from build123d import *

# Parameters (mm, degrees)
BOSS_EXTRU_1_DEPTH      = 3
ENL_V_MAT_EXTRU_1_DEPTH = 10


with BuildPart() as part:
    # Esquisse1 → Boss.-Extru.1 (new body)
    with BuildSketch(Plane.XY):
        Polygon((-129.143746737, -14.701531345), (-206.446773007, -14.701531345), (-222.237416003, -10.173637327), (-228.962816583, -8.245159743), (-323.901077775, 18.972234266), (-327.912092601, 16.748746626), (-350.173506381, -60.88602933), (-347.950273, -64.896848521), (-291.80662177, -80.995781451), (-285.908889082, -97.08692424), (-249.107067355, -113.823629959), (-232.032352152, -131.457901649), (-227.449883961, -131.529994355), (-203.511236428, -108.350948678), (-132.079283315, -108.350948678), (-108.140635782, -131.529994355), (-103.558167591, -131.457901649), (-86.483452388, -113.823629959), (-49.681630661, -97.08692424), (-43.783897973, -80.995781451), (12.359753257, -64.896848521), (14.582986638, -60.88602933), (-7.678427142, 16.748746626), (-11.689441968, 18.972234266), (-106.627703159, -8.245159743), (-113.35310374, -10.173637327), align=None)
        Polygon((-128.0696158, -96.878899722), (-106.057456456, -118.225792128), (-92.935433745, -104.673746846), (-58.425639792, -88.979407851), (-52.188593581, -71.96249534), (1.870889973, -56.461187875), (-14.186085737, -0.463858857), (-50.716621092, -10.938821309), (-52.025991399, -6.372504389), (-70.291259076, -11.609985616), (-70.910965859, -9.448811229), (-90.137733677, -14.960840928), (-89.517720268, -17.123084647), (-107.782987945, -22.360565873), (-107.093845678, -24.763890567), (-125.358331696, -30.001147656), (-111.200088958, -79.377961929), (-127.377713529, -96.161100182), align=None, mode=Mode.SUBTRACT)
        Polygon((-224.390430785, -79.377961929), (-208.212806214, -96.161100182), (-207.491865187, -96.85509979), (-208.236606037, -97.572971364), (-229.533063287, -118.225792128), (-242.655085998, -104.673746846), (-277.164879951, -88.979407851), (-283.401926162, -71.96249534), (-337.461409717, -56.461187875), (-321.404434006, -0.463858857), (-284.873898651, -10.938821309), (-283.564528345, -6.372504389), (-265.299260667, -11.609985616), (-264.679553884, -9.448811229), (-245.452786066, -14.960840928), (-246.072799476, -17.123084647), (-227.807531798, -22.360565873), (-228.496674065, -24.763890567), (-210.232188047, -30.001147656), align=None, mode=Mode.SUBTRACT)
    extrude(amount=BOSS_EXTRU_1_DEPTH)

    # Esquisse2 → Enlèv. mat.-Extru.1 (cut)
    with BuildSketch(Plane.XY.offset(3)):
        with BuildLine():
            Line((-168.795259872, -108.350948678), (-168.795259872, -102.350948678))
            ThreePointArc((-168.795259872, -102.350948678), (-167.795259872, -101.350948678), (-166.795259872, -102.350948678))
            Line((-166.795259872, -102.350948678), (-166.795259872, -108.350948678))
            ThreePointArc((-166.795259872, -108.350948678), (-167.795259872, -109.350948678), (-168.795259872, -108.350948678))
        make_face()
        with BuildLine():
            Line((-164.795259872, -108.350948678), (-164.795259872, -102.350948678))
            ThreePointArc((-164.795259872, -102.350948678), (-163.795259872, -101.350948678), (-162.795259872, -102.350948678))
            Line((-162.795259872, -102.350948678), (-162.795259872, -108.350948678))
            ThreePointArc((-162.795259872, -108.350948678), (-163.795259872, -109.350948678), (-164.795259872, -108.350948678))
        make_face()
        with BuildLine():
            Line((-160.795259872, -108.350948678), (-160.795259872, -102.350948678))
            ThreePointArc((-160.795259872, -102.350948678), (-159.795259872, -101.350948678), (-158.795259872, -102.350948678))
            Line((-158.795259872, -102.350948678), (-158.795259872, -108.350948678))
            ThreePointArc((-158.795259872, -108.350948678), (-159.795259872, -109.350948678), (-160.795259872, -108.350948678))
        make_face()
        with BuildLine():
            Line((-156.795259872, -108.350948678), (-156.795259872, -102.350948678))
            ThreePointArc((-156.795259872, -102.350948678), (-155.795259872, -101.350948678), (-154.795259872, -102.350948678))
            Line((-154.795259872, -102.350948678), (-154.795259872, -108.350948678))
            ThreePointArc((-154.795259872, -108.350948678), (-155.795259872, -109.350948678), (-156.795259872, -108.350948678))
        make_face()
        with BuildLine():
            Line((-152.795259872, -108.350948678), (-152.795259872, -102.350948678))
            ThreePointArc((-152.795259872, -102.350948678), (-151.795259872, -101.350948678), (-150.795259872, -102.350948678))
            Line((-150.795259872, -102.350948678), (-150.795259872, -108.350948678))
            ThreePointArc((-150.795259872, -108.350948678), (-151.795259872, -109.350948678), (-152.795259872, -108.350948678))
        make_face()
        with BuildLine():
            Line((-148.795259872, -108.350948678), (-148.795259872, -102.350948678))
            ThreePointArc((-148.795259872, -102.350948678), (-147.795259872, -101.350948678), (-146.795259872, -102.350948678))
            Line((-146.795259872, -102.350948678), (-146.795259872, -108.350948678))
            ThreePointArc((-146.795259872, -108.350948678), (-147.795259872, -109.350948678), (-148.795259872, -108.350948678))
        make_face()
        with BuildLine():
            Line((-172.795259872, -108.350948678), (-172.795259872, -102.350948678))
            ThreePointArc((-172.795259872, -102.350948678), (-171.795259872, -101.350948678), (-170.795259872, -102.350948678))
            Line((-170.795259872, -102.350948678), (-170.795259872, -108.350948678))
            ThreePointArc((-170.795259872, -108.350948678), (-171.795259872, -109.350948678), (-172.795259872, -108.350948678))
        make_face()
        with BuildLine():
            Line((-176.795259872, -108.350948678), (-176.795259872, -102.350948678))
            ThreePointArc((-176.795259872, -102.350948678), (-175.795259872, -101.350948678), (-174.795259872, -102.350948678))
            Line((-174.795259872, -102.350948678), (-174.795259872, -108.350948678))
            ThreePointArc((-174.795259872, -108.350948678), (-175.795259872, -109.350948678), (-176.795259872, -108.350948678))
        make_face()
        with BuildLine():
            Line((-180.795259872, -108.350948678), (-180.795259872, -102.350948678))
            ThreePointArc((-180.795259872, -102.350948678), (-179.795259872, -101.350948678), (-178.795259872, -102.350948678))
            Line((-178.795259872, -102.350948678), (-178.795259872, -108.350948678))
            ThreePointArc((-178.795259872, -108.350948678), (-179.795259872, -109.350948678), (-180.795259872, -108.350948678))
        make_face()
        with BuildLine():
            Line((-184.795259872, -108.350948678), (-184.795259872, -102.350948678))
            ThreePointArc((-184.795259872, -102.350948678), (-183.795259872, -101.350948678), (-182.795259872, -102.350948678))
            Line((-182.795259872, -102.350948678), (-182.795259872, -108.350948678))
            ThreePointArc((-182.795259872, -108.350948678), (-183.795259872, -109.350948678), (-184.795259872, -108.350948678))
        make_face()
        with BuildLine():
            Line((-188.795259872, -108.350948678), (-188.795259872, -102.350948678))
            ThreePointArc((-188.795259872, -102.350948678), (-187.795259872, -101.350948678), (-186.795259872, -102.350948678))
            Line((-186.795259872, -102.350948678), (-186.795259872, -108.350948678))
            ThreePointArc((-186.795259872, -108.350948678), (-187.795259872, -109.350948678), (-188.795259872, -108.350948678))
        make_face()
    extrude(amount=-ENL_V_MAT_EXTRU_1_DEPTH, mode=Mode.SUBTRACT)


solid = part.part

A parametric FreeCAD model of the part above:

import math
import FreeCAD as App
import Part
import Sketcher
Q = App.Units.Quantity

doc = App.newDocument("Part")
body = doc.addObject("PartDesign::Body", "Body")

# Sketch on XY plane
sketch1 = doc.addObject("Sketcher::SketchObject", "Sketch")
body.addObject(sketch1)
sketch1.AttachmentSupport = (doc.XY_Plane, [""])
sketch1.MapMode = "FlatFace"
sketch1.addGeometry(Part.LineSegment(App.Vector(-129.1, -14.7, 0), App.Vector(-206.4, -14.7, 0)), False)
sketch1.addGeometry(Part.LineSegment(App.Vector(-206.4, -14.7, 0), App.Vector(-229, -8.2, 0)), False)
sketch1.addGeometry(Part.LineSegment(App.Vector(-229, -8.2, 0), App.Vector(-323.9, 19, 0)), False)
sketch1.addGeometry(Part.LineSegment(App.Vector(-323.9, 19, 0), App.Vector(-327.9, 16.7, 0)), False)
sketch1.addGeometry(Part.LineSegment(App.Vector(-327.9, 16.7, 0), App.Vector(-350.2, -60.9, 0)), False)
sketch1.addGeometry(Part.LineSegment(App.Vector(-350.2, -60.9, 0), App.Vector(-348, -64.9, 0)), False)
sketch1.addGeometry(Part.LineSegment(App.Vector(-348, -64.9, 0), App.Vector(-291.8, -81, 0)), False)
sketch1.addGeometry(Part.LineSegment(App.Vector(-291.8, -81, 0), App.Vector(-285.9, -97.1, 0)), False)
sketch1.addGeometry(Part.LineSegment(App.Vector(-285.9, -97.1, 0), App.Vector(-249.1, -113.8, 0)), False)
sketch1.addGeometry(Part.LineSegment(App.Vector(-249.1, -113.8, 0), App.Vector(-232, -131.5, 0)), False)
sketch1.addGeometry(Part.LineSegment(App.Vector(-232, -131.5, 0), App.Vector(-227.4, -131.5, 0)), False)
sketch1.addGeometry(Part.LineSegment(App.Vector(-227.4, -131.5, 0), App.Vector(-203.5, -108.4, 0)), False)
sketch1.addGeometry(Part.LineSegment(App.Vector(-203.5, -108.4, 0), App.Vector(-132.1, -108.4, 0)), False)
sketch1.addGeometry(Part.LineSegment(App.Vector(-132.1, -108.4, 0), App.Vector(-108.1, -131.5, 0)), False)
sketch1.addGeometry(Part.LineSegment(App.Vector(-108.1, -131.5, 0), App.Vector(-103.6, -131.5, 0)), False)
sketch1.addGeometry(Part.LineSegment(App.Vector(-103.6, -131.5, 0), App.Vector(-86.5, -113.8, 0)), False)
sketch1.addGeometry(Part.LineSegment(App.Vector(-86.5, -113.8, 0), App.Vector(-49.7, -97.1, 0)), False)
sketch1.addGeometry(Part.LineSegment(App.Vector(-49.7, -97.1, 0), App.Vector(-43.8, -81, 0)), False)
sketch1.addGeometry(Part.LineSegment(App.Vector(-43.8, -81, 0), App.Vector(12.4, -64.9, 0)), False)
sketch1.addGeometry(Part.LineSegment(App.Vector(12.4, -64.9, 0), App.Vector(14.6, -60.9, 0)), False)
sketch1.addGeometry(Part.LineSegment(App.Vector(14.6, -60.9, 0), App.Vector(-7.7, 16.7, 0)), False)
sketch1.addGeometry(Part.LineSegment(App.Vector(-7.7, 16.7, 0), App.Vector(-11.7, 19, 0)), False)
sketch1.addGeometry(Part.LineSegment(App.Vector(-11.7, 19, 0), App.Vector(-106.6, -8.2, 0)), False)
sketch1.addGeometry(Part.LineSegment(App.Vector(-106.6, -8.2, 0), App.Vector(-113.4, -10.2, 0)), False)
sketch1.addGeometry(Part.LineSegment(App.Vector(-113.4, -10.2, 0), App.Vector(-129.1, -14.7, 0)), False)
sketch1.addGeometry(Part.LineSegment(App.Vector(-210.2, -30, 0), App.Vector(-224.4, -79.4, 0)), False)
sketch1.addGeometry(Part.LineSegment(App.Vector(-224.4, -79.4, 0), App.Vector(-208.2, -96.2, 0)), False)
sketch1.addGeometry(Part.LineSegment(App.Vector(-208.2, -96.2, 0), App.Vector(-207.5, -96.9, 0)), False)
sketch1.addGeometry(Part.LineSegment(App.Vector(-207.5, -96.9, 0), App.Vector(-208.2, -97.6, 0)), False)
sketch1.addGeometry(Part.LineSegment(App.Vector(-208.2, -97.6, 0), App.Vector(-229.5, -118.2, 0)), False)
sketch1.addGeometry(Part.LineSegment(App.Vector(-229.5, -118.2, 0), App.Vector(-242.7, -104.7, 0)), False)
sketch1.addGeometry(Part.LineSegment(App.Vector(-242.7, -104.7, 0), App.Vector(-277.2, -89, 0)), False)
sketch1.addGeometry(Part.LineSegment(App.Vector(-277.2, -89, 0), App.Vector(-283.4, -72, 0)), False)
sketch1.addGeometry(Part.LineSegment(App.Vector(-283.4, -72, 0), App.Vector(-337.5, -56.5, 0)), False)
sketch1.addGeometry(Part.LineSegment(App.Vector(-337.5, -56.5, 0), App.Vector(-321.4, -0.5, 0)), False)
sketch1.addGeometry(Part.LineSegment(App.Vector(-321.4, -0.5, 0), App.Vector(-284.9, -10.9, 0)), False)
sketch1.addGeometry(Part.LineSegment(App.Vector(-284.9, -10.9, 0), App.Vector(-283.6, -6.4, 0)), False)
sketch1.addGeometry(Part.LineSegment(App.Vector(-283.6, -6.4, 0), App.Vector(-265.3, -11.6, 0)), False)
sketch1.addGeometry(Part.LineSegment(App.Vector(-265.3, -11.6, 0), App.Vector(-264.7, -9.4, 0)), False)
sketch1.addGeometry(Part.LineSegment(App.Vector(-264.7, -9.4, 0), App.Vector(-245.5, -15, 0)), False)
sketch1.addGeometry(Part.LineSegment(App.Vector(-245.5, -15, 0), App.Vector(-246.1, -17.1, 0)), False)
sketch1.addGeometry(Part.LineSegment(App.Vector(-246.1, -17.1, 0), App.Vector(-227.8, -22.4, 0)), False)
sketch1.addGeometry(Part.LineSegment(App.Vector(-227.8, -22.4, 0), App.Vector(-228.5, -24.8, 0)), False)
sketch1.addGeometry(Part.LineSegment(App.Vector(-228.5, -24.8, 0), App.Vector(-210.2, -30, 0)), False)
sketch1.addGeometry(Part.LineSegment(App.Vector(-106.1, -118.2, 0), App.Vector(-128.1, -96.9, 0)), False)
sketch1.addGeometry(Part.LineSegment(App.Vector(-128.1, -96.9, 0), App.Vector(-127.4, -96.2, 0)), False)
sketch1.addGeometry(Part.LineSegment(App.Vector(-127.4, -96.2, 0), App.Vector(-111.2, -79.4, 0)), False)
sketch1.addGeometry(Part.LineSegment(App.Vector(-111.2, -79.4, 0), App.Vector(-125.4, -30, 0)), False)
sketch1.addGeometry(Part.LineSegment(App.Vector(-125.4, -30, 0), App.Vector(-107.1, -24.8, 0)), False)
sketch1.addGeometry(Part.LineSegment(App.Vector(-107.1, -24.8, 0), App.Vector(-107.8, -22.4, 0)), False)
sketch1.addGeometry(Part.LineSegment(App.Vector(-107.8, -22.4, 0), App.Vector(-89.5, -17.1, 0)), False)
sketch1.addGeometry(Part.LineSegment(App.Vector(-89.5, -17.1, 0), App.Vector(-90.1, -15, 0)), False)
sketch1.addGeometry(Part.LineSegment(App.Vector(-90.1, -15, 0), App.Vector(-70.9, -9.4, 0)), False)
sketch1.addGeometry(Part.LineSegment(App.Vector(-70.9, -9.4, 0), App.Vector(-70.3, -11.6, 0)), False)
sketch1.addGeometry(Part.LineSegment(App.Vector(-70.3, -11.6, 0), App.Vector(-52, -6.4, 0)), False)
sketch1.addGeometry(Part.LineSegment(App.Vector(-52, -6.4, 0), App.Vector(-50.7, -10.9, 0)), False)
sketch1.addGeometry(Part.LineSegment(App.Vector(-50.7, -10.9, 0), App.Vector(-14.2, -0.5, 0)), False)
sketch1.addGeometry(Part.LineSegment(App.Vector(-14.2, -0.5, 0), App.Vector(1.9, -56.5, 0)), False)
sketch1.addGeometry(Part.LineSegment(App.Vector(1.9, -56.5, 0), App.Vector(-52.2, -72, 0)), False)
sketch1.addGeometry(Part.LineSegment(App.Vector(-52.2, -72, 0), App.Vector(-58.4, -89, 0)), False)
sketch1.addGeometry(Part.LineSegment(App.Vector(-58.4, -89, 0), App.Vector(-92.9, -104.7, 0)), False)
sketch1.addGeometry(Part.LineSegment(App.Vector(-92.9, -104.7, 0), App.Vector(-106.1, -118.2, 0)), False)
sketch1.addConstraint(Sketcher.Constraint("Coincident", 0, 2, 1, 1))
sketch1.addConstraint(Sketcher.Constraint("Coincident", 1, 2, 2, 1))
sketch1.addConstraint(Sketcher.Constraint("Coincident", 2, 2, 3, 1))
sketch1.addConstraint(Sketcher.Constraint("Coincident", 3, 2, 4, 1))
sketch1.addConstraint(Sketcher.Constraint("Coincident", 4, 2, 5, 1))
sketch1.addConstraint(Sketcher.Constraint("Coincident", 5, 2, 6, 1))
sketch1.addConstraint(Sketcher.Constraint("Coincident", 6, 2, 7, 1))
sketch1.addConstraint(Sketcher.Constraint("Coincident", 7, 2, 8, 1))
sketch1.addConstraint(Sketcher.Constraint("Coincident", 8, 2, 9, 1))
sketch1.addConstraint(Sketcher.Constraint("Coincident", 9, 2, 10, 1))
sketch1.addConstraint(Sketcher.Constraint("Coincident", 10, 2, 11, 1))
sketch1.addConstraint(Sketcher.Constraint("Coincident", 11, 2, 12, 1))
sketch1.addConstraint(Sketcher.Constraint("Coincident", 12, 2, 13, 1))
sketch1.addConstraint(Sketcher.Constraint("Coincident", 13, 2, 14, 1))
sketch1.addConstraint(Sketcher.Constraint("Coincident", 14, 2, 15, 1))
sketch1.addConstraint(Sketcher.Constraint("Coincident", 15, 2, 16, 1))
sketch1.addConstraint(Sketcher.Constraint("Coincident", 16, 2, 17, 1))
sketch1.addConstraint(Sketcher.Constraint("Coincident", 17, 2, 18, 1))
sketch1.addConstraint(Sketcher.Constraint("Coincident", 18, 2, 19, 1))
sketch1.addConstraint(Sketcher.Constraint("Coincident", 19, 2, 20, 1))
sketch1.addConstraint(Sketcher.Constraint("Coincident", 20, 2, 21, 1))
sketch1.addConstraint(Sketcher.Constraint("Coincident", 21, 2, 22, 1))
sketch1.addConstraint(Sketcher.Constraint("Coincident", 22, 2, 23, 1))
sketch1.addConstraint(Sketcher.Constraint("Coincident", 23, 2, 24, 1))
sketch1.addConstraint(Sketcher.Constraint("Coincident", 24, 2, 0, 1))
sketch1.addConstraint(Sketcher.Constraint("Coincident", 25, 2, 26, 1))
sketch1.addConstraint(Sketcher.Constraint("Coincident", 26, 2, 27, 1))
sketch1.addConstraint(Sketcher.Constraint("Coincident", 27, 2, 28, 1))
sketch1.addConstraint(Sketcher.Constraint("Coincident", 28, 2, 29, 1))
sketch1.addConstraint(Sketcher.Constraint("Coincident", 29, 2, 30, 1))
sketch1.addConstraint(Sketcher.Constraint("Coincident", 30, 2, 31, 1))
sketch1.addConstraint(Sketcher.Constraint("Coincident", 31, 2, 32, 1))
sketch1.addConstraint(Sketcher.Constraint("Coincident", 32, 2, 33, 1))
sketch1.addConstraint(Sketcher.Constraint("Coincident", 33, 2, 34, 1))
sketch1.addConstraint(Sketcher.Constraint("Coincident", 34, 2, 35, 1))
sketch1.addConstraint(Sketcher.Constraint("Coincident", 35, 2, 36, 1))
sketch1.addConstraint(Sketcher.Constraint("Coincident", 36, 2, 37, 1))
sketch1.addConstraint(Sketcher.Constraint("Coincident", 37, 2, 38, 1))
sketch1.addConstraint(Sketcher.Constraint("Coincident", 38, 2, 39, 1))
sketch1.addConstraint(Sketcher.Constraint("Coincident", 39, 2, 40, 1))
sketch1.addConstraint(Sketcher.Constraint("Coincident", 40, 2, 41, 1))
sketch1.addConstraint(Sketcher.Constraint("Coincident", 41, 2, 42, 1))
sketch1.addConstraint(Sketcher.Constraint("Coincident", 42, 2, 43, 1))
sketch1.addConstraint(Sketcher.Constraint("Coincident", 43, 2, 25, 1))
sketch1.addConstraint(Sketcher.Constraint("Coincident", 44, 2, 45, 1))
sketch1.addConstraint(Sketcher.Constraint("Coincident", 45, 2, 46, 1))
sketch1.addConstraint(Sketcher.Constraint("Coincident", 46, 2, 47, 1))
sketch1.addConstraint(Sketcher.Constraint("Coincident", 47, 2, 48, 1))
sketch1.addConstraint(Sketcher.Constraint("Coincident", 48, 2, 49, 1))
sketch1.addConstraint(Sketcher.Constraint("Coincident", 49, 2, 50, 1))
sketch1.addConstraint(Sketcher.Constraint("Coincident", 50, 2, 51, 1))
sketch1.addConstraint(Sketcher.Constraint("Coincident", 51, 2, 52, 1))
sketch1.addConstraint(Sketcher.Constraint("Coincident", 52, 2, 53, 1))
sketch1.addConstraint(Sketcher.Constraint("Coincident", 53, 2, 54, 1))
sketch1.addConstraint(Sketcher.Constraint("Coincident", 54, 2, 55, 1))
sketch1.addConstraint(Sketcher.Constraint("Coincident", 55, 2, 56, 1))
sketch1.addConstraint(Sketcher.Constraint("Coincident", 56, 2, 57, 1))
sketch1.addConstraint(Sketcher.Constraint("Coincident", 57, 2, 58, 1))
sketch1.addConstraint(Sketcher.Constraint("Coincident", 58, 2, 59, 1))
sketch1.addConstraint(Sketcher.Constraint("Coincident", 59, 2, 60, 1))
sketch1.addConstraint(Sketcher.Constraint("Coincident", 60, 2, 61, 1))
sketch1.addConstraint(Sketcher.Constraint("Coincident", 61, 2, 44, 1))
sketch1.addConstraint(Sketcher.Constraint("Horizontal", 0))
sketch1.addConstraint(Sketcher.Constraint("Horizontal", 12))
sketch1.addConstraint(Sketcher.Constraint("Perpendicular", 1, 4))
sketch1.addConstraint(Sketcher.Constraint("Perpendicular", 4, 6))
sketch1.addConstraint(Sketcher.Constraint("Perpendicular", 9, 11))
sketch1.addConstraint(Sketcher.Constraint("Perpendicular", 13, 15))
sketch1.addConstraint(Sketcher.Constraint("Perpendicular", 18, 20))
sketch1.addConstraint(Sketcher.Constraint("Perpendicular", 20, 23))
sketch1.addConstraint(Sketcher.Constraint("Parallel", 23, 24))
sketch1.addConstraint(Sketcher.Constraint("Perpendicular", 26, 28))
sketch1.addConstraint(Sketcher.Constraint("Perpendicular", 11, 30))
sketch1.addConstraint(Sketcher.Constraint("Parallel", 8, 31))
sketch1.addConstraint(Sketcher.Constraint("Parallel", 7, 32))
sketch1.addConstraint(Sketcher.Constraint("Parallel", 6, 33))
sketch1.addConstraint(Sketcher.Constraint("Perpendicular", 33, 34))
sketch1.addConstraint(Sketcher.Constraint("Perpendicular", 34, 35))
sketch1.addConstraint(Sketcher.Constraint("Perpendicular", 35, 36))
sketch1.addConstraint(Sketcher.Constraint("Perpendicular", 36, 37))
sketch1.addConstraint(Sketcher.Constraint("Perpendicular", 37, 38))
sketch1.addConstraint(Sketcher.Constraint("Parallel", 2, 39))
sketch1.addConstraint(Sketcher.Constraint("Parallel", 38, 40))
sketch1.addConstraint(Sketcher.Constraint("Perpendicular", 40, 41))
sketch1.addConstraint(Sketcher.Constraint("Perpendicular", 41, 42))
sketch1.addConstraint(Sketcher.Constraint("Perpendicular", 42, 43))
sketch1.addConstraint(Sketcher.Constraint("Parallel", 45, 46))
sketch1.addConstraint(Sketcher.Constraint("Parallel", 24, 48))
sketch1.addConstraint(Sketcher.Constraint("Perpendicular", 48, 49))
sketch1.addConstraint(Sketcher.Constraint("Perpendicular", 49, 50))
sketch1.addConstraint(Sketcher.Constraint("Perpendicular", 50, 51))
sketch1.addConstraint(Sketcher.Constraint("Parallel", 22, 52))
sketch1.addConstraint(Sketcher.Constraint("Parallel", 51, 53))
sketch1.addConstraint(Sketcher.Constraint("Perpendicular", 53, 54))
sketch1.addConstraint(Sketcher.Constraint("Perpendicular", 54, 55))
sketch1.addConstraint(Sketcher.Constraint("Perpendicular", 55, 56))
sketch1.addConstraint(Sketcher.Constraint("Perpendicular", 56, 57))
sketch1.addConstraint(Sketcher.Constraint("Perpendicular", 57, 58))
sketch1.addConstraint(Sketcher.Constraint("Parallel", 17, 59))
sketch1.addConstraint(Sketcher.Constraint("Parallel", 16, 60))
sketch1.addConstraint(Sketcher.Constraint("Parallel", 15, 61))
sketch1.addConstraint(Sketcher.Constraint("Horizontal", 10, 2, 13, 2))
sketch1.addConstraint(Sketcher.Constraint("Horizontal", 9, 2, 14, 2))
sketch1.addConstraint(Sketcher.Constraint("Horizontal", 8, 2, 15, 2))
sketch1.addConstraint(Sketcher.Constraint("Horizontal", 7, 2, 16, 2))
sketch1.addConstraint(Sketcher.Constraint("Horizontal", 6, 2, 17, 2))
sketch1.addConstraint(Sketcher.Constraint("Horizontal", 5, 2, 18, 2))
sketch1.addConstraint(Sketcher.Constraint("Horizontal", 4, 2, 19, 2))
sketch1.addConstraint(Sketcher.Constraint("Horizontal", 3, 2, 20, 2))
sketch1.addConstraint(Sketcher.Constraint("Horizontal", 2, 2, 21, 2))
sketch1.addConstraint(Sketcher.Constraint("Horizontal", 1, 2, 22, 2))
sketch1.addConstraint(Sketcher.Constraint("Horizontal", 26, 2, 45, 2))
sketch1.addConstraint(Sketcher.Constraint("Horizontal", 25, 2, 46, 2))
sketch1.addConstraint(Sketcher.Constraint("Horizontal", 43, 2, 47, 2))
sketch1.addConstraint(Sketcher.Constraint("Horizontal", 42, 2, 48, 2))
sketch1.addConstraint(Sketcher.Constraint("Horizontal", 41, 2, 49, 2))
sketch1.addConstraint(Sketcher.Constraint("Horizontal", 40, 2, 50, 2))
sketch1.addConstraint(Sketcher.Constraint("Horizontal", 39, 2, 51, 2))
sketch1.addConstraint(Sketcher.Constraint("Horizontal", 38, 2, 52, 2))
sketch1.addConstraint(Sketcher.Constraint("Horizontal", 37, 2, 53, 2))
sketch1.addConstraint(Sketcher.Constraint("Horizontal", 36, 2, 54, 2))
sketch1.addConstraint(Sketcher.Constraint("Horizontal", 35, 2, 55, 2))
sketch1.addConstraint(Sketcher.Constraint("Horizontal", 34, 2, 56, 2))
sketch1.addConstraint(Sketcher.Constraint("Horizontal", 33, 2, 57, 2))
sketch1.addConstraint(Sketcher.Constraint("Horizontal", 32, 2, 58, 2))
sketch1.addConstraint(Sketcher.Constraint("Horizontal", 31, 2, 59, 2))
sketch1.addConstraint(Sketcher.Constraint("Horizontal", 30, 2, 60, 2))
sketch1.addConstraint(Sketcher.Constraint("Horizontal", 29, 2, 61, 2))
sketch1.addConstraint(Sketcher.Constraint("Equal", 11, 13))
sketch1.addConstraint(Sketcher.Constraint("Equal", 10, 14))
sketch1.addConstraint(Sketcher.Constraint("Equal", 8, 16))
sketch1.addConstraint(Sketcher.Constraint("Equal", 7, 17))
sketch1.addConstraint(Sketcher.Constraint("Equal", 6, 18))
sketch1.addConstraint(Sketcher.Constraint("Equal", 5, 19))
sketch1.addConstraint(Sketcher.Constraint("Equal", 3, 21))
sketch1.addConstraint(Sketcher.Constraint("Equal", 2, 22))
sketch1.addConstraint(Sketcher.Constraint("Equal", 37, 41))
sketch1.addConstraint(Sketcher.Constraint("Equal", 26, 46))
sketch1.addConstraint(Sketcher.Constraint("Equal", 25, 47))
sketch1.addConstraint(Sketcher.Constraint("Angle", 1, Q("164 deg")))
sketch1.addConstraint(Sketcher.Constraint("Angle", 5, Q("-61 deg")))
sketch1.addConstraint(Sketcher.Constraint("DistanceY", 9, 2, -1, 1, 131.457902))
sketch1.addConstraint(Sketcher.Constraint("DistanceY", 26, 2, -1, 1, 96.1611))
sketch1.addConstraint(Sketcher.Constraint("DistanceY", 27, 2, -1, 1, 96.8551))
sketch1.addConstraint(Sketcher.Constraint("DistanceX", 35, 2, -1, 1, 284.873899))
sketch1.addConstraint(Sketcher.Constraint("DistanceX", 40, 2, -1, 1, 246.072799))
sketch1.addConstraint(Sketcher.Constraint("DistanceY", 44, 2, -1, 1, 96.8789))
sketch1.addConstraint(Sketcher.Constraint("Distance", 3, 4.586081))
sketch1.addConstraint(Sketcher.Constraint("Distance", 6, 58.406209))
sketch1.addConstraint(Sketcher.Constraint("Distance", 9, 24.546149))
sketch1.addConstraint(Sketcher.Constraint("Distance", 11, 33.32157))
sketch1.addConstraint(Sketcher.Constraint("Distance", 23, 6.99643))
sketch1.addConstraint(Sketcher.Constraint("Distance", 25, 51.366581))
sketch1.addConstraint(Sketcher.Constraint("Distance", 26, 23.310711))
sketch1.addConstraint(Sketcher.Constraint("Distance", 29, 29.66611))
sketch1.addConstraint(Sketcher.Constraint("Distance", 32, 18.123908))
sketch1.addConstraint(Sketcher.Constraint("Distance", 33, 56.23805))
sketch1.addConstraint(Sketcher.Constraint("Distance", 34, 58.25399))
sketch1.addConstraint(Sketcher.Constraint("Distance", 38, 2.248268))
sketch1.addConstraint(Sketcher.Constraint("Distance", 40, 2.249381))
sketch1.addConstraint(Sketcher.Constraint("Distance", 44, 30.663088))
sketch1.addConstraint(Sketcher.Constraint("DistanceX", 0, 2, 0, 1, 77.303026))
sketch1.addConstraint(Sketcher.Constraint("DistanceX", 12, 1, 12, 2, 71.431953))
sketch1.addConstraint(Sketcher.Constraint("DistanceY", 0, 2, -1, 1, 14.701531))
sketch1.addConstraint(Sketcher.Constraint("DistanceY", 1, 2, -1, 1, 8.24516))
sketch1.addConstraint(Sketcher.Constraint("DistanceY", 4, 2, -1, 1, 60.886029))
sketch1.addConstraint(Sketcher.Constraint("DistanceY", 5, 2, -1, 1, 64.896849))
sketch1.addConstraint(Sketcher.Constraint("DistanceX", 6, 2, -1, 1, 291.806622))
sketch1.addConstraint(Sketcher.Constraint("DistanceX", 7, 2, -1, 1, 285.908889))
sketch1.addConstraint(Sketcher.Constraint("DistanceY", 8, 2, -1, 1, 113.82363))
sketch1.addConstraint(Sketcher.Constraint("DistanceY", 11, 2, -1, 1, 108.350949))
sketch1.addConstraint(Sketcher.Constraint("DistanceX", 16, 2, -1, 1, 49.681631))
sketch1.addConstraint(Sketcher.Constraint("DistanceX", 21, 2, -1, 1, 11.689442))
sketch1.addConstraint(Sketcher.Constraint("DistanceX", 25, 2, -1, 1, 224.390431))
sketch1.addConstraint(Sketcher.Constraint("DistanceY", 25, 2, -1, 1, 79.377962))
sketch1.addConstraint(Sketcher.Constraint("DistanceY", 28, 2, -1, 1, 97.572971))
sketch1.addConstraint(Sketcher.Constraint("DistanceX", 31, 2, -1, 1, 277.16488))
sketch1.addConstraint(Sketcher.Constraint("DistanceX", 33, 2, -1, 1, 337.46141))
sketch1.addConstraint(Sketcher.Constraint("DistanceY", 34, 2, -1, 1, 0.463859))
sketch1.addConstraint(Sketcher.Constraint("DistanceX", 36, 2, -1, 1, 283.564528))
sketch1.addConstraint(Sketcher.Constraint("DistanceX", 37, 2, -1, 1, 265.299261))
sketch1.addConstraint(Sketcher.Constraint("DistanceY", 39, 2, -1, 1, 14.960841))
sketch1.addConstraint(Sketcher.Constraint("DistanceX", 43, 2, -1, 1, 210.232188))
sketch1.addConstraint(Sketcher.Constraint("DistanceX", 46, 2, -1, 1, 111.200089))
sketch1.addConstraint(Sketcher.Constraint("Distance", 8, 40.428844))
sketch1.addConstraint(Sketcher.Constraint("Distance", 30, 18.863865))
pad1 = doc.addObject("PartDesign::Pad", "Pad")
body.addObject(pad1)
pad1.Profile = sketch1
pad1.Length = 3

# Sketch on XY plane
sketch2 = doc.addObject("Sketcher::SketchObject", "Sketch001")
body.addObject(sketch2)
sketch2.AttachmentSupport = (doc.XY_Plane, [""])
sketch2.MapMode = "FlatFace"
sketch2.AttachmentOffset = App.Placement(App.Vector(0, 0, 3), App.Rotation())
sketch2.addGeometry(Part.LineSegment(App.Vector(-168.8, -102.4, 0), App.Vector(-168.8, -108.4, 0)), False)
sketch2.addGeometry(Part.ArcOfCircle(Part.Circle(App.Vector(-167.8, -108.4, 0), App.Vector(0, 0, 1), 1), math.radians(180), math.radians(360)), False)
sketch2.addGeometry(Part.LineSegment(App.Vector(-166.8, -108.4, 0), App.Vector(-166.8, -102.4, 0)), False)
sketch2.addGeometry(Part.ArcOfCircle(Part.Circle(App.Vector(-167.8, -102.4, 0), App.Vector(0, 0, 1), 1), math.radians(0), math.radians(180)), False)
sketch2.addGeometry(Part.LineSegment(App.Vector(-164.8, -102.4, 0), App.Vector(-164.8, -108.4, 0)), False)
sketch2.addGeometry(Part.ArcOfCircle(Part.Circle(App.Vector(-163.8, -108.4, 0), App.Vector(0, 0, 1), 1), math.radians(180), math.radians(360)), False)
sketch2.addGeometry(Part.LineSegment(App.Vector(-162.8, -108.4, 0), App.Vector(-162.8, -102.4, 0)), False)
sketch2.addGeometry(Part.ArcOfCircle(Part.Circle(App.Vector(-163.8, -102.4, 0), App.Vector(0, 0, 1), 1), math.radians(0), math.radians(180)), False)
sketch2.addGeometry(Part.LineSegment(App.Vector(-160.8, -102.4, 0), App.Vector(-160.8, -108.4, 0)), False)
sketch2.addGeometry(Part.ArcOfCircle(Part.Circle(App.Vector(-159.8, -108.4, 0), App.Vector(0, 0, 1), 1), math.radians(180), math.radians(360)), False)
sketch2.addGeometry(Part.LineSegment(App.Vector(-158.8, -108.4, 0), App.Vector(-158.8, -102.4, 0)), False)
sketch2.addGeometry(Part.ArcOfCircle(Part.Circle(App.Vector(-159.8, -102.4, 0), App.Vector(0, 0, 1), 1), math.radians(0), math.radians(180)), False)
sketch2.addGeometry(Part.LineSegment(App.Vector(-156.8, -102.4, 0), App.Vector(-156.8, -108.4, 0)), False)
sketch2.addGeometry(Part.ArcOfCircle(Part.Circle(App.Vector(-155.8, -108.4, 0), App.Vector(0, 0, 1), 1), math.radians(180), math.radians(360)), False)
sketch2.addGeometry(Part.LineSegment(App.Vector(-154.8, -108.4, 0), App.Vector(-154.8, -102.4, 0)), False)
sketch2.addGeometry(Part.ArcOfCircle(Part.Circle(App.Vector(-155.8, -102.4, 0), App.Vector(0, 0, 1), 1), math.radians(0), math.radians(180)), False)
sketch2.addGeometry(Part.LineSegment(App.Vector(-152.8, -102.4, 0), App.Vector(-152.8, -108.4, 0)), False)
sketch2.addGeometry(Part.ArcOfCircle(Part.Circle(App.Vector(-151.8, -108.4, 0), App.Vector(0, 0, 1), 1), math.radians(180), math.radians(360)), False)
sketch2.addGeometry(Part.LineSegment(App.Vector(-150.8, -108.4, 0), App.Vector(-150.8, -102.4, 0)), False)
sketch2.addGeometry(Part.ArcOfCircle(Part.Circle(App.Vector(-151.8, -102.4, 0), App.Vector(0, 0, 1), 1), math.radians(0), math.radians(180)), False)
sketch2.addGeometry(Part.LineSegment(App.Vector(-148.8, -102.4, 0), App.Vector(-148.8, -108.4, 0)), False)
sketch2.addGeometry(Part.ArcOfCircle(Part.Circle(App.Vector(-147.8, -108.4, 0), App.Vector(0, 0, 1), 1), math.radians(180), math.radians(360)), False)
sketch2.addGeometry(Part.LineSegment(App.Vector(-146.8, -108.4, 0), App.Vector(-146.8, -102.4, 0)), False)
sketch2.addGeometry(Part.ArcOfCircle(Part.Circle(App.Vector(-147.8, -102.4, 0), App.Vector(0, 0, 1), 1), math.radians(0), math.radians(180)), False)
sketch2.addGeometry(Part.LineSegment(App.Vector(-172.8, -102.4, 0), App.Vector(-172.8, -108.4, 0)), False)
sketch2.addGeometry(Part.ArcOfCircle(Part.Circle(App.Vector(-171.8, -108.4, 0), App.Vector(0, 0, 1), 1), math.radians(180), math.radians(360)), False)
sketch2.addGeometry(Part.LineSegment(App.Vector(-170.8, -108.4, 0), App.Vector(-170.8, -102.4, 0)), False)
sketch2.addGeometry(Part.ArcOfCircle(Part.Circle(App.Vector(-171.8, -102.4, 0), App.Vector(0, 0, 1), 1), math.radians(0), math.radians(180)), False)
sketch2.addGeometry(Part.LineSegment(App.Vector(-176.8, -102.4, 0), App.Vector(-176.8, -108.4, 0)), False)
sketch2.addGeometry(Part.ArcOfCircle(Part.Circle(App.Vector(-175.8, -108.4, 0), App.Vector(0, 0, 1), 1), math.radians(180), math.radians(360)), False)
sketch2.addGeometry(Part.LineSegment(App.Vector(-174.8, -108.4, 0), App.Vector(-174.8, -102.4, 0)), False)
sketch2.addGeometry(Part.ArcOfCircle(Part.Circle(App.Vector(-175.8, -102.4, 0), App.Vector(0, 0, 1), 1), math.radians(0), math.radians(180)), False)
sketch2.addGeometry(Part.LineSegment(App.Vector(-180.8, -102.4, 0), App.Vector(-180.8, -108.4, 0)), False)
sketch2.addGeometry(Part.ArcOfCircle(Part.Circle(App.Vector(-179.8, -108.4, 0), App.Vector(0, 0, 1), 1), math.radians(180), math.radians(360)), False)
sketch2.addGeometry(Part.LineSegment(App.Vector(-178.8, -108.4, 0), App.Vector(-178.8, -102.4, 0)), False)
sketch2.addGeometry(Part.ArcOfCircle(Part.Circle(App.Vector(-179.8, -102.4, 0), App.Vector(0, 0, 1), 1), math.radians(0), math.radians(180)), False)
sketch2.addGeometry(Part.LineSegment(App.Vector(-184.8, -102.4, 0), App.Vector(-184.8, -108.4, 0)), False)
sketch2.addGeometry(Part.ArcOfCircle(Part.Circle(App.Vector(-183.8, -108.4, 0), App.Vector(0, 0, 1), 1), math.radians(180), math.radians(360)), False)
sketch2.addGeometry(Part.LineSegment(App.Vector(-182.8, -108.4, 0), App.Vector(-182.8, -102.4, 0)), False)
sketch2.addGeometry(Part.ArcOfCircle(Part.Circle(App.Vector(-183.8, -102.4, 0), App.Vector(0, 0, 1), 1), math.radians(0), math.radians(180)), False)
sketch2.addGeometry(Part.LineSegment(App.Vector(-188.8, -102.4, 0), App.Vector(-188.8, -108.4, 0)), False)
sketch2.addGeometry(Part.ArcOfCircle(Part.Circle(App.Vector(-187.8, -108.4, 0), App.Vector(0, 0, 1), 1), math.radians(180), math.radians(360)), False)
sketch2.addGeometry(Part.LineSegment(App.Vector(-186.8, -108.4, 0), App.Vector(-186.8, -102.4, 0)), False)
sketch2.addGeometry(Part.ArcOfCircle(Part.Circle(App.Vector(-187.8, -102.4, 0), App.Vector(0, 0, 1), 1), math.radians(0), math.radians(180)), False)
sketch2.addConstraint(Sketcher.Constraint("Tangent", 0, 2, 1, 1))
sketch2.addConstraint(Sketcher.Constraint("Tangent", 1, 2, 2, 1))
sketch2.addConstraint(Sketcher.Constraint("Tangent", 2, 2, 3, 1))
sketch2.addConstraint(Sketcher.Constraint("Tangent", 3, 2, 0, 1))
sketch2.addConstraint(Sketcher.Constraint("Tangent", 4, 2, 5, 1))
sketch2.addConstraint(Sketcher.Constraint("Tangent", 5, 2, 6, 1))
sketch2.addConstraint(Sketcher.Constraint("Tangent", 6, 2, 7, 1))
sketch2.addConstraint(Sketcher.Constraint("Tangent", 7, 2, 4, 1))
sketch2.addConstraint(Sketcher.Constraint("Tangent", 8, 2, 9, 1))
sketch2.addConstraint(Sketcher.Constraint("Tangent", 9, 2, 10, 1))
sketch2.addConstraint(Sketcher.Constraint("Tangent", 10, 2, 11, 1))
sketch2.addConstraint(Sketcher.Constraint("Tangent", 11, 2, 8, 1))
sketch2.addConstraint(Sketcher.Constraint("Tangent", 12, 2, 13, 1))
sketch2.addConstraint(Sketcher.Constraint("Tangent", 13, 2, 14, 1))
sketch2.addConstraint(Sketcher.Constraint("Tangent", 14, 2, 15, 1))
sketch2.addConstraint(Sketcher.Constraint("Tangent", 15, 2, 12, 1))
sketch2.addConstraint(Sketcher.Constraint("Tangent", 16, 2, 17, 1))
sketch2.addConstraint(Sketcher.Constraint("Tangent", 17, 2, 18, 1))
sketch2.addConstraint(Sketcher.Constraint("Tangent", 18, 2, 19, 1))
sketch2.addConstraint(Sketcher.Constraint("Tangent", 19, 2, 16, 1))
sketch2.addConstraint(Sketcher.Constraint("Tangent", 20, 2, 21, 1))
sketch2.addConstraint(Sketcher.Constraint("Tangent", 21, 2, 22, 1))
sketch2.addConstraint(Sketcher.Constraint("Tangent", 22, 2, 23, 1))
sketch2.addConstraint(Sketcher.Constraint("Tangent", 23, 2, 20, 1))
sketch2.addConstraint(Sketcher.Constraint("Tangent", 24, 2, 25, 1))
sketch2.addConstraint(Sketcher.Constraint("Tangent", 25, 2, 26, 1))
sketch2.addConstraint(Sketcher.Constraint("Tangent", 26, 2, 27, 1))
sketch2.addConstraint(Sketcher.Constraint("Tangent", 27, 2, 24, 1))
sketch2.addConstraint(Sketcher.Constraint("Tangent", 28, 2, 29, 1))
sketch2.addConstraint(Sketcher.Constraint("Tangent", 29, 2, 30, 1))
sketch2.addConstraint(Sketcher.Constraint("Tangent", 30, 2, 31, 1))
sketch2.addConstraint(Sketcher.Constraint("Tangent", 31, 2, 28, 1))
sketch2.addConstraint(Sketcher.Constraint("Tangent", 32, 2, 33, 1))
sketch2.addConstraint(Sketcher.Constraint("Tangent", 33, 2, 34, 1))
sketch2.addConstraint(Sketcher.Constraint("Tangent", 34, 2, 35, 1))
sketch2.addConstraint(Sketcher.Constraint("Tangent", 35, 2, 32, 1))
sketch2.addConstraint(Sketcher.Constraint("Tangent", 36, 2, 37, 1))
sketch2.addConstraint(Sketcher.Constraint("Tangent", 37, 2, 38, 1))
sketch2.addConstraint(Sketcher.Constraint("Tangent", 38, 2, 39, 1))
sketch2.addConstraint(Sketcher.Constraint("Tangent", 39, 2, 36, 1))
sketch2.addConstraint(Sketcher.Constraint("Tangent", 40, 2, 41, 1))
sketch2.addConstraint(Sketcher.Constraint("Tangent", 41, 2, 42, 1))
sketch2.addConstraint(Sketcher.Constraint("Tangent", 42, 2, 43, 1))
sketch2.addConstraint(Sketcher.Constraint("Tangent", 43, 2, 40, 1))
sketch2.addConstraint(Sketcher.Constraint("Vertical", 0))
sketch2.addConstraint(Sketcher.Constraint("Vertical", 2))
sketch2.addConstraint(Sketcher.Constraint("Vertical", 4))
sketch2.addConstraint(Sketcher.Constraint("Vertical", 6))
sketch2.addConstraint(Sketcher.Constraint("Vertical", 8))
sketch2.addConstraint(Sketcher.Constraint("Vertical", 10))
sketch2.addConstraint(Sketcher.Constraint("Vertical", 12))
sketch2.addConstraint(Sketcher.Constraint("Vertical", 14))
sketch2.addConstraint(Sketcher.Constraint("Vertical", 16))
sketch2.addConstraint(Sketcher.Constraint("Vertical", 18))
sketch2.addConstraint(Sketcher.Constraint("Vertical", 20))
sketch2.addConstraint(Sketcher.Constraint("Vertical", 22))
sketch2.addConstraint(Sketcher.Constraint("Vertical", 24))
sketch2.addConstraint(Sketcher.Constraint("Vertical", 26))
sketch2.addConstraint(Sketcher.Constraint("Vertical", 28))
sketch2.addConstraint(Sketcher.Constraint("Vertical", 30))
sketch2.addConstraint(Sketcher.Constraint("Vertical", 32))
sketch2.addConstraint(Sketcher.Constraint("Vertical", 34))
sketch2.addConstraint(Sketcher.Constraint("Vertical", 36))
sketch2.addConstraint(Sketcher.Constraint("Vertical", 38))
sketch2.addConstraint(Sketcher.Constraint("Vertical", 40))
sketch2.addConstraint(Sketcher.Constraint("Vertical", 42))
sketch2.addConstraint(Sketcher.Constraint("Equal", 3, 5))
sketch2.addConstraint(Sketcher.Constraint("Equal", 7, 9))
sketch2.addConstraint(Sketcher.Constraint("Equal", 11, 13))
sketch2.addConstraint(Sketcher.Constraint("Equal", 15, 17))
sketch2.addConstraint(Sketcher.Constraint("Equal", 19, 21))
sketch2.addConstraint(Sketcher.Constraint("Equal", 23, 25))
sketch2.addConstraint(Sketcher.Constraint("Equal", 27, 29))
sketch2.addConstraint(Sketcher.Constraint("Equal", 31, 33))
sketch2.addConstraint(Sketcher.Constraint("Equal", 35, 37))
sketch2.addConstraint(Sketcher.Constraint("Equal", 39, 41))
sketch2.addConstraint(Sketcher.Constraint("Horizontal", 1, 3, 5, 3))
sketch2.addConstraint(Sketcher.Constraint("Horizontal", 3, 3, 7, 3))
sketch2.addConstraint(Sketcher.Constraint("Horizontal", 5, 3, 9, 3))
sketch2.addConstraint(Sketcher.Constraint("Horizontal", 7, 3, 11, 3))
sketch2.addConstraint(Sketcher.Constraint("Horizontal", 9, 3, 13, 3))
sketch2.addConstraint(Sketcher.Constraint("Horizontal", 11, 3, 15, 3))
sketch2.addConstraint(Sketcher.Constraint("Horizontal", 13, 3, 17, 3))
sketch2.addConstraint(Sketcher.Constraint("Horizontal", 15, 3, 19, 3))
sketch2.addConstraint(Sketcher.Constraint("Horizontal", 17, 3, 21, 3))
sketch2.addConstraint(Sketcher.Constraint("Horizontal", 19, 3, 23, 3))
sketch2.addConstraint(Sketcher.Constraint("Horizontal", 21, 3, 25, 3))
sketch2.addConstraint(Sketcher.Constraint("Horizontal", 23, 3, 27, 3))
sketch2.addConstraint(Sketcher.Constraint("Horizontal", 25, 3, 29, 3))
sketch2.addConstraint(Sketcher.Constraint("Horizontal", 27, 3, 31, 3))
sketch2.addConstraint(Sketcher.Constraint("Horizontal", 29, 3, 33, 3))
sketch2.addConstraint(Sketcher.Constraint("Horizontal", 31, 3, 35, 3))
sketch2.addConstraint(Sketcher.Constraint("Horizontal", 33, 3, 37, 3))
sketch2.addConstraint(Sketcher.Constraint("Horizontal", 35, 3, 39, 3))
sketch2.addConstraint(Sketcher.Constraint("Horizontal", 37, 3, 41, 3))
sketch2.addConstraint(Sketcher.Constraint("Horizontal", 39, 3, 43, 3))
sketch2.addConstraint(Sketcher.Constraint("Radius", 1, 1.0))
sketch2.addConstraint(Sketcher.Constraint("DistanceY", 0, 2, 0, 1, 6.0))
sketch2.addConstraint(Sketcher.Constraint("DistanceX", 1, 3, -1, 1, 167.79526))
sketch2.addConstraint(Sketcher.Constraint("DistanceY", 1, 3, -1, 1, 108.350949))
sketch2.addConstraint(Sketcher.Constraint("DistanceX", 5, 3, -1, 1, 163.79526))
sketch2.addConstraint(Sketcher.Constraint("DistanceX", 9, 3, -1, 1, 159.79526))
sketch2.addConstraint(Sketcher.Constraint("DistanceX", 13, 3, -1, 1, 155.79526))
sketch2.addConstraint(Sketcher.Constraint("DistanceX", 17, 3, -1, 1, 151.79526))
sketch2.addConstraint(Sketcher.Constraint("DistanceX", 21, 3, -1, 1, 147.79526))
sketch2.addConstraint(Sketcher.Constraint("DistanceX", 25, 3, -1, 1, 171.79526))
sketch2.addConstraint(Sketcher.Constraint("DistanceX", 29, 3, -1, 1, 175.79526))
sketch2.addConstraint(Sketcher.Constraint("DistanceX", 33, 3, -1, 1, 179.79526))
sketch2.addConstraint(Sketcher.Constraint("DistanceX", 37, 3, -1, 1, 183.79526))
sketch2.addConstraint(Sketcher.Constraint("DistanceX", 41, 3, -1, 1, 187.79526))
pocket1 = doc.addObject("PartDesign::Pocket", "Pocket")
body.addObject(pocket1)
pocket1.Profile = sketch2
pocket1.Length = 10

doc.recompute()
